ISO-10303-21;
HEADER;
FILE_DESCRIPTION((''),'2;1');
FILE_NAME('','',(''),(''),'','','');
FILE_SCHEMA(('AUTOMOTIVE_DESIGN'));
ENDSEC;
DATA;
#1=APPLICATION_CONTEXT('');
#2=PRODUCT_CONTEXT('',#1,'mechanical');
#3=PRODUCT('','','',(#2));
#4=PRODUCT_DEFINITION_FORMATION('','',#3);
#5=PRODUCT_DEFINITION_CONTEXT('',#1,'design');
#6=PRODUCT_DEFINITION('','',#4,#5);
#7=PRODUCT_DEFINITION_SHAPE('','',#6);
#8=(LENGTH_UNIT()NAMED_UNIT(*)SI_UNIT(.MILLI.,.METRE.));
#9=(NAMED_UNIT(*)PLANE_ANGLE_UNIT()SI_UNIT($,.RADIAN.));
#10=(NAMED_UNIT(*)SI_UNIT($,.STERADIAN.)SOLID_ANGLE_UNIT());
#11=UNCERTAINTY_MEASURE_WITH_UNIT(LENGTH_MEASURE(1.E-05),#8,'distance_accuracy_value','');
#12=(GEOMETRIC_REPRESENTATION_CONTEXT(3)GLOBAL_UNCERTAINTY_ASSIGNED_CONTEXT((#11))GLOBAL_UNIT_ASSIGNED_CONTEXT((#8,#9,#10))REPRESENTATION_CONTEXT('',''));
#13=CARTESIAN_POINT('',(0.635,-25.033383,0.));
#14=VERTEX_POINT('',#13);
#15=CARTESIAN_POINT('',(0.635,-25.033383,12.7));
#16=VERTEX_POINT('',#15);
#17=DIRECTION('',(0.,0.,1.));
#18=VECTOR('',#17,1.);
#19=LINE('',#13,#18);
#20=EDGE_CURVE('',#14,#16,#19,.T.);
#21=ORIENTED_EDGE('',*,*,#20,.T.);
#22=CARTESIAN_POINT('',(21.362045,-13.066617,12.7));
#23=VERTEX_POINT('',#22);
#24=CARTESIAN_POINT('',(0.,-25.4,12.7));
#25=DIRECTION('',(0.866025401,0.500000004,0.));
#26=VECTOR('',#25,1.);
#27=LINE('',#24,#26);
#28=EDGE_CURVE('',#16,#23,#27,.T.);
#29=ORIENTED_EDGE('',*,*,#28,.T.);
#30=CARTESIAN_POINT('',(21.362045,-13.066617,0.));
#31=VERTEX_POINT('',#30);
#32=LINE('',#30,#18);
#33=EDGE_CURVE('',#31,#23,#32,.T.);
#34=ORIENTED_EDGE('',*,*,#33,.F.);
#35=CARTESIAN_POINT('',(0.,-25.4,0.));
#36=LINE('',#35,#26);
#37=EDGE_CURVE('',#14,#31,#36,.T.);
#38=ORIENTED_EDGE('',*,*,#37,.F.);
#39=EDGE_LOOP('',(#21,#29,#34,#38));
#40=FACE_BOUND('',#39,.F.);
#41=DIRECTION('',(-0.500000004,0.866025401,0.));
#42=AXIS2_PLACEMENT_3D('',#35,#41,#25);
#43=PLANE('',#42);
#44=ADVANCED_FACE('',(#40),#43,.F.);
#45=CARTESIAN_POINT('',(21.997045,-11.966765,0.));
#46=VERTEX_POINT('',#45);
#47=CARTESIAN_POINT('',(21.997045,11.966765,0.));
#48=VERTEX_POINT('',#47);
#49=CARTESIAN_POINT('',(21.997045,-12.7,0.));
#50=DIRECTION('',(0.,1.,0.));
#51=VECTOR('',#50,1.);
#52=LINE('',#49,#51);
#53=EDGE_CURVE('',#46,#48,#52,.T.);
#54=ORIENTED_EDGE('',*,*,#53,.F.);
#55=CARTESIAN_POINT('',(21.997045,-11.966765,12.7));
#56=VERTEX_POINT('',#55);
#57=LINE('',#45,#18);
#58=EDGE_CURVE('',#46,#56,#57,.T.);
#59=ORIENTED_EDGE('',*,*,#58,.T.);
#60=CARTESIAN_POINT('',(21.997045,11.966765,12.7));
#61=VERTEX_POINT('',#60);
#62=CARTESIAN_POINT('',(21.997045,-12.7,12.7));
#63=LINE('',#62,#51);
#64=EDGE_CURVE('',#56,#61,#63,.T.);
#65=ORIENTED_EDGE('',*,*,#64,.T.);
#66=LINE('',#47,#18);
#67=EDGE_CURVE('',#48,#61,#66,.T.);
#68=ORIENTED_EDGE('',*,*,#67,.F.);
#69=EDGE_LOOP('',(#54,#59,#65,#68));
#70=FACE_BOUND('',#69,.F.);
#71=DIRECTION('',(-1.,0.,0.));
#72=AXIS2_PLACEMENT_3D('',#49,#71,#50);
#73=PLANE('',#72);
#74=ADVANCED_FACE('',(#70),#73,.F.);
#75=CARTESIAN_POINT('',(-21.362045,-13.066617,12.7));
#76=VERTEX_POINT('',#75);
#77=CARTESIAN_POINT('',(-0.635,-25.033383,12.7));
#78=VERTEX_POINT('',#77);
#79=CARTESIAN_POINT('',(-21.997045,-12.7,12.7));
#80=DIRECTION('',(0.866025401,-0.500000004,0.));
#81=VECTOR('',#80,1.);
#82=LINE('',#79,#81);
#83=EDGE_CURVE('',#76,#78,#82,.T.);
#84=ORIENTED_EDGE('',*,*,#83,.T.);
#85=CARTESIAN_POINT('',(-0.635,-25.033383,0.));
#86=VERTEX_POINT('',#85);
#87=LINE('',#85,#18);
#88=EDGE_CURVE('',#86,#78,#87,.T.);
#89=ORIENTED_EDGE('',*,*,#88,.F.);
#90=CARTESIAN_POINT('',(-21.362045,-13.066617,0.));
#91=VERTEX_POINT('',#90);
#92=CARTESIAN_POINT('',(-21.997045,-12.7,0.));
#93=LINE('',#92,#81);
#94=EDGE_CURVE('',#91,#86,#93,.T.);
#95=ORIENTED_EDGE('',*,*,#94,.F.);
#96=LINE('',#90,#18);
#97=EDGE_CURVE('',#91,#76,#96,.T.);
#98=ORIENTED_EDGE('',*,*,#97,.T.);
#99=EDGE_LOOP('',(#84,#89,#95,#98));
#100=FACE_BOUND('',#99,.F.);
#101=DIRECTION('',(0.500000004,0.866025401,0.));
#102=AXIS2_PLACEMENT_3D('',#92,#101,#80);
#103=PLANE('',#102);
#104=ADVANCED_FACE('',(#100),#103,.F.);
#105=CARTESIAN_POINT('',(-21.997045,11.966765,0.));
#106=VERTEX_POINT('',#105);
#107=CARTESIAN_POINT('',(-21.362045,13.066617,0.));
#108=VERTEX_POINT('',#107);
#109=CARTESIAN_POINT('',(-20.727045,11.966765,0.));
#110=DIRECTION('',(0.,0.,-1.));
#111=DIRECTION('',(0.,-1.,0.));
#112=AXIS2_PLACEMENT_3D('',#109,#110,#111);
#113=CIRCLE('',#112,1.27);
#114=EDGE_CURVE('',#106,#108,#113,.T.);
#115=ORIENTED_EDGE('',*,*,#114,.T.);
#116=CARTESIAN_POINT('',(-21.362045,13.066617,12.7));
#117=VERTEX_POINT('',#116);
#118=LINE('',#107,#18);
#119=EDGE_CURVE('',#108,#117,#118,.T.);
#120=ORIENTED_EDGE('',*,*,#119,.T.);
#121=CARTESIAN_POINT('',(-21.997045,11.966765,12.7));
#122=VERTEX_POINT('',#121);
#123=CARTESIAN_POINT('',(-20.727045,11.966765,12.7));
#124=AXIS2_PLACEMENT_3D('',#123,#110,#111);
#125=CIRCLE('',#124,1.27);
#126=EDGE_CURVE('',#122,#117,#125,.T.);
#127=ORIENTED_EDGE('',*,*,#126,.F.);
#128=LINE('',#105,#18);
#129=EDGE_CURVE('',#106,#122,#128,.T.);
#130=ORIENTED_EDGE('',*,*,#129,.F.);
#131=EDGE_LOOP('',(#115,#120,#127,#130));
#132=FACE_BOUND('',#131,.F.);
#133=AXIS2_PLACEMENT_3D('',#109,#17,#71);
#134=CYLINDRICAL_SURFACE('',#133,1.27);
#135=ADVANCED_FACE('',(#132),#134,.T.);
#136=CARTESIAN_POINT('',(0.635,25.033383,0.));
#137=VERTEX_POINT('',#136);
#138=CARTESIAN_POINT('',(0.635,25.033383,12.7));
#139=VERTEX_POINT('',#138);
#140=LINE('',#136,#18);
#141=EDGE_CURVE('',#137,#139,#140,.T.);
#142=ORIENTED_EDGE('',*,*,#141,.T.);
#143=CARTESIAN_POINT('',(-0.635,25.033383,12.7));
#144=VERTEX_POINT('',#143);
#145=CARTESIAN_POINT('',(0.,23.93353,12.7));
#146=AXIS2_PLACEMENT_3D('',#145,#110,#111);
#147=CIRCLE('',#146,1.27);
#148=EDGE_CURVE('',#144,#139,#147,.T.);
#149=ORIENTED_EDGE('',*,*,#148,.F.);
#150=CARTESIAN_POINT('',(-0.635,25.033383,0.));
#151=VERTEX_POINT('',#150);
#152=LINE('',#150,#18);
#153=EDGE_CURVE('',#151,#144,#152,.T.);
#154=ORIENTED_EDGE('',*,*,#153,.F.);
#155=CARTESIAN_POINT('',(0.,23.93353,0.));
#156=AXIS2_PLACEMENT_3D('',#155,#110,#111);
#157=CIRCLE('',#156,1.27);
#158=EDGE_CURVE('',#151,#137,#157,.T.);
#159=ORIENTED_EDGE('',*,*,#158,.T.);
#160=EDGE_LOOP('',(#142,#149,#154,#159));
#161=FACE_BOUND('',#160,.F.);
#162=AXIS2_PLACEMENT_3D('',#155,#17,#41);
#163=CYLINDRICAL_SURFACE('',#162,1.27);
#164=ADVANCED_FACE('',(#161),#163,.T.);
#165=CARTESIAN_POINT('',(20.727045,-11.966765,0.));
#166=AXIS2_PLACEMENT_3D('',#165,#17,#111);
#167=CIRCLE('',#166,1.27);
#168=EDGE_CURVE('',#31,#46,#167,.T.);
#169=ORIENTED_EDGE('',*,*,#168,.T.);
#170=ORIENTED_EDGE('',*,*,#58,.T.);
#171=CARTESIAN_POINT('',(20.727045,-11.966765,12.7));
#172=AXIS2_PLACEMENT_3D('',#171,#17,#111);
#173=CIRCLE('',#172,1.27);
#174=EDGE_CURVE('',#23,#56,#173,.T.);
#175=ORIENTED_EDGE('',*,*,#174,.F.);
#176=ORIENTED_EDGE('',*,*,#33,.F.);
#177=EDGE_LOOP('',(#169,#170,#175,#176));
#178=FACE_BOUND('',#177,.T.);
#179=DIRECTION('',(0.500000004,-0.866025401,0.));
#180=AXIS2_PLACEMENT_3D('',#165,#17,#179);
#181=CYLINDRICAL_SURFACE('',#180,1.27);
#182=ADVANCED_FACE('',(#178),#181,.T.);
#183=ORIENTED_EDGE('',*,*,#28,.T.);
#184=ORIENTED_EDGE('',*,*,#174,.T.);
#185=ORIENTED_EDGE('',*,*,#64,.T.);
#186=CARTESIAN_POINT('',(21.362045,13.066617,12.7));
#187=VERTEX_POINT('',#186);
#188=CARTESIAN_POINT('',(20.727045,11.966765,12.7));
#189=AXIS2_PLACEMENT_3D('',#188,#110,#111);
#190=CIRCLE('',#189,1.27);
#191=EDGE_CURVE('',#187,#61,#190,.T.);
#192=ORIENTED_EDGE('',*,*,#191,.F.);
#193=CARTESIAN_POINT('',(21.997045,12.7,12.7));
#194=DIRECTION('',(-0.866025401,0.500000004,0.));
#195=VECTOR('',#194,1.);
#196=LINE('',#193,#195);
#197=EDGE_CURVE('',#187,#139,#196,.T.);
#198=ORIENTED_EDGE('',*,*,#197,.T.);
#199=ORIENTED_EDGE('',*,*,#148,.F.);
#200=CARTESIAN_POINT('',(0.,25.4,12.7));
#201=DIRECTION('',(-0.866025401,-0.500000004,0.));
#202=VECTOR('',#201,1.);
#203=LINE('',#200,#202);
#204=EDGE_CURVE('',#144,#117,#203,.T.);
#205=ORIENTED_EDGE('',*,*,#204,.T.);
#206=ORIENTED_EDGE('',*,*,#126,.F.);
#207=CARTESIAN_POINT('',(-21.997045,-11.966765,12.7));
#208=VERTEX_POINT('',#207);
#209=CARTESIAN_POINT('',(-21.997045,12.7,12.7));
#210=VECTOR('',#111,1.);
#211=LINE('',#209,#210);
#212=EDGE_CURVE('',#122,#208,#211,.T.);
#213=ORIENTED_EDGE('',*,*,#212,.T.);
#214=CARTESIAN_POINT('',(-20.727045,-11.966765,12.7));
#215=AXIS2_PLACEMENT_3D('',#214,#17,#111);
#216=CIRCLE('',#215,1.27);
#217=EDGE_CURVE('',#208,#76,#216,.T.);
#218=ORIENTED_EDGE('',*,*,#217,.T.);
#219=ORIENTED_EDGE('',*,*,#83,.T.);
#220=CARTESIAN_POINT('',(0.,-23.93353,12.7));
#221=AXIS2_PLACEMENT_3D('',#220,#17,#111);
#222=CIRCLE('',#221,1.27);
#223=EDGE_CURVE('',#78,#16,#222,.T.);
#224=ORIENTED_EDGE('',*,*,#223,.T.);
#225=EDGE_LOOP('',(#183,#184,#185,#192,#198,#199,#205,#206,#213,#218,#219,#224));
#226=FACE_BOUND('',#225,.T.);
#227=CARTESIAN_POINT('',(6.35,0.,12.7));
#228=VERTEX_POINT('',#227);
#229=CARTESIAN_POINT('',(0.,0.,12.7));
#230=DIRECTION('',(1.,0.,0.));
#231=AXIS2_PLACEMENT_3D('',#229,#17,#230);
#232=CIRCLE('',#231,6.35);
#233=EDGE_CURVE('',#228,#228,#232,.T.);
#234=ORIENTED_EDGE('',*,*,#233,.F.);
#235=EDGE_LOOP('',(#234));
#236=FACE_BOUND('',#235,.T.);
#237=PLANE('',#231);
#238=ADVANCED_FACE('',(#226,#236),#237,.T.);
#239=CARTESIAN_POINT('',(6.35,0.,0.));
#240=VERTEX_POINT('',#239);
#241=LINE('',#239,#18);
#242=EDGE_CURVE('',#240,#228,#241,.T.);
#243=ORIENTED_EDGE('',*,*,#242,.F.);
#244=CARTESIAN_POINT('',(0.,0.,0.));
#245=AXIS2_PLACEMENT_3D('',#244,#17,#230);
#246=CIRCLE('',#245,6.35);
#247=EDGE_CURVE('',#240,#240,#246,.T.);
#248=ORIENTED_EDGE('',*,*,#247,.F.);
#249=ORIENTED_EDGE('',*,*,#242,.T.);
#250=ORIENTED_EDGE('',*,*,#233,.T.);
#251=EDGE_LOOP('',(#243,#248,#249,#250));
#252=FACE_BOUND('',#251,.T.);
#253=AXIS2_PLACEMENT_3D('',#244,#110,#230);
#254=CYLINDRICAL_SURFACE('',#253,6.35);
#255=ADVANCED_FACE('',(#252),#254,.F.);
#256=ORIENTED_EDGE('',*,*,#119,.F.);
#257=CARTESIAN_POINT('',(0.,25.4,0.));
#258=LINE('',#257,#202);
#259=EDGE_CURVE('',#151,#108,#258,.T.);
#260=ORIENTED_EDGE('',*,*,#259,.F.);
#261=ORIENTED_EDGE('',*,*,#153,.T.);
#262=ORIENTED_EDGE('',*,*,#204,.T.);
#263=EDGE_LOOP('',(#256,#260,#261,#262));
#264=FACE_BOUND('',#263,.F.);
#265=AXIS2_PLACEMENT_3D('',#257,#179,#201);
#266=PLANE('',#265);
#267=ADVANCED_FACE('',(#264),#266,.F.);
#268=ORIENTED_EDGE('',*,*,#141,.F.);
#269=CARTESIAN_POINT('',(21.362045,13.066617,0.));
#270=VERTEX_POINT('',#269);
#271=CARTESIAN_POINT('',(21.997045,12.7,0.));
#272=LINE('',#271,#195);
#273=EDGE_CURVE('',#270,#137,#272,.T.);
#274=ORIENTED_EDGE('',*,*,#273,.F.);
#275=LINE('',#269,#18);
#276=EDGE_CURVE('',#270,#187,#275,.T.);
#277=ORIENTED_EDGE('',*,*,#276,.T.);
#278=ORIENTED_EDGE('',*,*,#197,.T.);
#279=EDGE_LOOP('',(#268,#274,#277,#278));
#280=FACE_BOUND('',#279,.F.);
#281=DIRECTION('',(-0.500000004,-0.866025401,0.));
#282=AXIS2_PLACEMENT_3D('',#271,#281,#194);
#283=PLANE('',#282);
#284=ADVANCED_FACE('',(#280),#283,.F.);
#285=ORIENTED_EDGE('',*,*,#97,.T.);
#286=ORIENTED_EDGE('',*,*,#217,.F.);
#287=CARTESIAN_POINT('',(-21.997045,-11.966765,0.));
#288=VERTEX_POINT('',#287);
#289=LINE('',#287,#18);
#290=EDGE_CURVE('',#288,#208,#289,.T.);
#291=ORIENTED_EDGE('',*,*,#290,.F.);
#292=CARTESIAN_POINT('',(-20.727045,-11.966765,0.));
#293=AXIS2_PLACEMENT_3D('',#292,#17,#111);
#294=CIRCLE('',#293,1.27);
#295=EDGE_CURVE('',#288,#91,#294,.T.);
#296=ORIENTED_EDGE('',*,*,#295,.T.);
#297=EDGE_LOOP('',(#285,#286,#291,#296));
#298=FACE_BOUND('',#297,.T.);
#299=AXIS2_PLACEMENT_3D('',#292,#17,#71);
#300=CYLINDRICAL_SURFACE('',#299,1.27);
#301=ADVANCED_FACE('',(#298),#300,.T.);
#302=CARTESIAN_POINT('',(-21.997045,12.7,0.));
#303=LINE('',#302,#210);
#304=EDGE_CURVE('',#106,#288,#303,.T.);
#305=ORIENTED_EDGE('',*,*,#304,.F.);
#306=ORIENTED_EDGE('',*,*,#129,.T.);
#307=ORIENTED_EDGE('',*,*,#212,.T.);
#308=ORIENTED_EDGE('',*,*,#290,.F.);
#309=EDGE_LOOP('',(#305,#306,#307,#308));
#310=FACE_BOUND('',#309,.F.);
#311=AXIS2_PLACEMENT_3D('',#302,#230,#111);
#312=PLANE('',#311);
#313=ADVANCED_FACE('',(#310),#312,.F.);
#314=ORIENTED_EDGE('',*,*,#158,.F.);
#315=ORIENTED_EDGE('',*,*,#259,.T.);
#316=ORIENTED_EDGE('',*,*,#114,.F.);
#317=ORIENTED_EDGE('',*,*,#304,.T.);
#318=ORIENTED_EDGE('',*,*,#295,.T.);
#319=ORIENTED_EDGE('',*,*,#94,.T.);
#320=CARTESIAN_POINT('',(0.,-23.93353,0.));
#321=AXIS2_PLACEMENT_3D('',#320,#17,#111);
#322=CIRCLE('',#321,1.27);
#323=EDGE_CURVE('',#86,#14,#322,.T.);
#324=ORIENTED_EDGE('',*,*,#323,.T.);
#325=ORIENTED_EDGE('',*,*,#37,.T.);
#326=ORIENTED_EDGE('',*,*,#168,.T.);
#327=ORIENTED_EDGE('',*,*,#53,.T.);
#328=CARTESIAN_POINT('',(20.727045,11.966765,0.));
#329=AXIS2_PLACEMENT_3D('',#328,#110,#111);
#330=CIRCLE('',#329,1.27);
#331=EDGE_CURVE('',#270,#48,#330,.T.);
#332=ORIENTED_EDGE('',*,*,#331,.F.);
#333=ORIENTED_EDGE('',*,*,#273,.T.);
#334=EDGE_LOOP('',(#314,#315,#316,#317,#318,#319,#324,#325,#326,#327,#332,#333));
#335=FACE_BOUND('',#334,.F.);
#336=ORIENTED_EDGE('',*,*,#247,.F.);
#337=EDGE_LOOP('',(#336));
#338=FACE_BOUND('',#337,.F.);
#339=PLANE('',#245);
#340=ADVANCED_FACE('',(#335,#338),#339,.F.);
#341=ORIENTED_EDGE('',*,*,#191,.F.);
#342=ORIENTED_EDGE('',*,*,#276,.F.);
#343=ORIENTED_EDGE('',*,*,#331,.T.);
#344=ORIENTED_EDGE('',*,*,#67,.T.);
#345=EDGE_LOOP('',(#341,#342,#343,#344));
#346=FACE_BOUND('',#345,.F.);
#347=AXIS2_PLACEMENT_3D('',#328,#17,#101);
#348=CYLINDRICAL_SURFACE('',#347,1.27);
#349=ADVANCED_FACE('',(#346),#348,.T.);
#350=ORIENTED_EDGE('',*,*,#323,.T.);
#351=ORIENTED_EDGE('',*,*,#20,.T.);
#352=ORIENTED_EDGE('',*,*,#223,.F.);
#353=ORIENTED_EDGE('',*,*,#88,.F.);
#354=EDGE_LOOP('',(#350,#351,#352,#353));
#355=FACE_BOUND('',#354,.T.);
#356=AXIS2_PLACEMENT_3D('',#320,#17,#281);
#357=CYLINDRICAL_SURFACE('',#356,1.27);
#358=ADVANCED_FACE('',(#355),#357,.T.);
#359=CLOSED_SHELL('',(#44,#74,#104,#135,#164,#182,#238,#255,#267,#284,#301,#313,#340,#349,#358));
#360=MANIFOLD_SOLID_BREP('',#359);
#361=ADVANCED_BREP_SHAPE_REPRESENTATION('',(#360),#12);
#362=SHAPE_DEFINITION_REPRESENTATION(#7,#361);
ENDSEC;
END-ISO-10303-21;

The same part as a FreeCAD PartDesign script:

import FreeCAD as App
import Part
import Sketcher

V = App.Vector
Q = App.Units.Quantity


def edges_at(feature, points):
    """Names of the edges that pass closest to the given points."""
    edges = feature.Shape.Edges
    near = lambda p: min(range(len(edges)), key=lambda i: edges[i].distToShape(Part.Vertex(*p))[0])
    return sorted({f"Edge{near(p) + 1}" for p in points})


def add_polygon(sketch, points):
    """Adds a closed chain of lines whose ends are joined by coincident constraints."""
    first, n = sketch.GeometryCount, len(points)
    for a, b in zip(points, points[1:] + points[:1]):
        sketch.addGeometry(Part.LineSegment(App.Vector(*a, 0), App.Vector(*b, 0)), False)
    for i in range(n):
        sketch.addConstraint(Sketcher.Constraint("Coincident", first + i, 2, first + (i + 1) % n, 1))

doc = App.newDocument("Part")
params = doc.addObject("Spreadsheet::Sheet", "Params")
for row, (alias, value) in enumerate([
    ("sketch1_diameter", "0.5 in"),
    ("sketch1_height", "1 in"),
    ("sketch1_length", "1 in"),
    ("pad1_length", "0.5 in"),
    ("fillet_radius", "0.05 in"),
], start=1):
    params.set(f"A{row}", alias)
    params.set(f"B{row}", "=" + value)
    params.setAlias(f"B{row}", alias)

body = doc.addObject("PartDesign::Body", "Body")

sketch1 = doc.addObject("Sketcher::SketchObject", "Sketch")
body.addObject(sketch1)
sketch1.AttachmentSupport = (doc.XY_Plane, [""])
sketch1.MapMode = "FlatFace"
add_polygon(sketch1, [(-22, 13), (-22, -13), (0, -25), (22, -13), (22, 13), (0, 25)])
sketch1.addGeometry(Part.Circle(V(0, 0, 0), V(0, 0, 1), 6), False)
sketch1.addConstraint(Sketcher.Constraint("Vertical", 0))
sketch1.addConstraint(Sketcher.Constraint("Vertical", 3))
sketch1.addConstraint(Sketcher.Constraint("Coincident", 6, 3, -1, 1))
sketch1.addConstraint(Sketcher.Constraint("Symmetric", 0, 2, 3, 2, -1, 1))
sketch1.addConstraint(Sketcher.Constraint("Symmetric", 1, 2, 4, 2, -1, 1))
sketch1.addConstraint(Sketcher.Constraint("PointOnObject", 1, 2, -2))
sketch1.addConstraint(Sketcher.Constraint("Parallel", 2, 5))
sketch1.addConstraint(Sketcher.Constraint("Horizontal", 0, 2, 2, 2))
sketch1.addConstraint(Sketcher.Constraint("Diameter", 6, Q("0.5 in")))
sketch1.addConstraint(Sketcher.Constraint("DistanceY", 0, 2, 0, 1, Q("1 in")))
sketch1.addConstraint(Sketcher.Constraint("Distance", 1, Q("1 in")))
sketch1.addConstraint(Sketcher.Constraint("DistanceY", 1, 2, -1, 1, Q("1 in")))
sketch1.setExpression("Constraints[14]", "Params.sketch1_diameter")
sketch1.setExpression("Constraints[15]", "Params.sketch1_height")
sketch1.setExpression("Constraints[16]", "Params.sketch1_length")
pad1 = doc.addObject("PartDesign::Pad", "Pad")
body.addObject(pad1)
pad1.Profile = sketch1
pad1.setExpression("Length", "Params.pad1_length")
doc.recompute()

fillet = doc.addObject("PartDesign::Fillet", "Fillet")
body.addObject(fillet)
fillet.Base = (pad1, edges_at(pad1, [
    (21.997, -12.7, 6.35),
    (0, -25.4, 6.35),
    (21.997, 12.7, 6.35),
    (-21.997, -12.7, 6.35),
    (-21.997, 12.7, 6.35),
    (0, 25.4, 6.35),
]))
fillet.setExpression("Radius", "Params.fillet_radius")

doc.recompute()
